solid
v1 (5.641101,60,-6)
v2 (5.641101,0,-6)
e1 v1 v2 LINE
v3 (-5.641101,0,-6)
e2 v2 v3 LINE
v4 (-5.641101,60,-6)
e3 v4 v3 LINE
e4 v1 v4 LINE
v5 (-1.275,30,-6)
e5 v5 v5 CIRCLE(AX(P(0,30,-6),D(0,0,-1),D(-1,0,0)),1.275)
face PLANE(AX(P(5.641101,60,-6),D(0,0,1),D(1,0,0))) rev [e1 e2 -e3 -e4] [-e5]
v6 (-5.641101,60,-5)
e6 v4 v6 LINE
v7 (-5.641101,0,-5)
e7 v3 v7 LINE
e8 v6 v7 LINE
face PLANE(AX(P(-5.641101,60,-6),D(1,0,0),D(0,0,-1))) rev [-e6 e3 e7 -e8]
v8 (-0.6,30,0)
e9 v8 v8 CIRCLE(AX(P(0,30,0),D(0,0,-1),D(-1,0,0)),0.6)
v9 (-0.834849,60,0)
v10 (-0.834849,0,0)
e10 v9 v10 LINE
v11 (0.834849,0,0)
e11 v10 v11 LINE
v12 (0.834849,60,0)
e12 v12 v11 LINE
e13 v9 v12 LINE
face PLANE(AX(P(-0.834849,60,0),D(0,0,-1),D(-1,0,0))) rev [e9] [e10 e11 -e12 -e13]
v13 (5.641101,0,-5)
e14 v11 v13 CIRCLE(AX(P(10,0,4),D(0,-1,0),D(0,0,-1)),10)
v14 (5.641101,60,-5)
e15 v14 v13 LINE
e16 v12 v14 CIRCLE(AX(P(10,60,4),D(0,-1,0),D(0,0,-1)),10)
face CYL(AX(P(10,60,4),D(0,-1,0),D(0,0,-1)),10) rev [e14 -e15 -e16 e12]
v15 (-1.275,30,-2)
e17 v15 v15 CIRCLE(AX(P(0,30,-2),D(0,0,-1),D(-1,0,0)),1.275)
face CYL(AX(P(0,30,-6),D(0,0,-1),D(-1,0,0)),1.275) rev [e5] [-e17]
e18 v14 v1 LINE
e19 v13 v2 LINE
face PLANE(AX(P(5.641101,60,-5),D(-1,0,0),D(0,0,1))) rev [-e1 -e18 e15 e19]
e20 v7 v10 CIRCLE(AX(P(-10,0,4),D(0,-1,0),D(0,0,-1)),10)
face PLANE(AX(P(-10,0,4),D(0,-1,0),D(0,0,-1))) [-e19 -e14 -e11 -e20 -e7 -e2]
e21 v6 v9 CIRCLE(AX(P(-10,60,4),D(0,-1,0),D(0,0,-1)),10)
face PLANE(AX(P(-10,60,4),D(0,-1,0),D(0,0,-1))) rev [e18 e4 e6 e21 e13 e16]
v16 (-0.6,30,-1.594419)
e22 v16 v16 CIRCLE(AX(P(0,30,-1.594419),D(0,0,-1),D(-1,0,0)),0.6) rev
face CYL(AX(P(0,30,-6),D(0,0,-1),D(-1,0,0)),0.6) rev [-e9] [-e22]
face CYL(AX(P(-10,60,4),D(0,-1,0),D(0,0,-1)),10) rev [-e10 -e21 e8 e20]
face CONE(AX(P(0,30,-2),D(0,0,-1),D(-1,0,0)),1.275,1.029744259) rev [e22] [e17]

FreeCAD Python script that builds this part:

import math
import FreeCAD as App
import Part
import Sketcher
Q = App.Units.Quantity

doc = App.newDocument("Part")
params = doc.addObject("Spreadsheet::Sheet", "Params")
for row, (alias, value) in enumerate([
    ("sketch1_radius", "10 mm"),
    ("sketch1_height", "1 mm"),
    ("pad1_length", "60 mm"),
    ("sketch2_diameter", "2.55 mm"),
    ("hole_diameter", "2.55 mm"),
    ("hole_depth", "4 mm"),
    ("sketch3_diameter", "1.2 mm"),
    ("hole2_diameter", "1.2 mm"),
    ("hole2_depth", "6.45 mm"),
], start=1):
    params.set(f"A{row}", alias)
    params.set(f"B{row}", "=" + value)
    params.setAlias(f"B{row}", alias)

body = doc.addObject("PartDesign::Body", "Body")

# Sketch on XZ plane
sketch1 = body.newObject("Sketcher::SketchObject", "Sketch")
sketch1.AttachmentSupport = (doc.getObject("XZ_Plane"), [""])
sketch1.MapMode = "FlatFace"
sketch1.addGeometry([
    Part.LineSegment(App.Vector(-0.8, 0, 0), App.Vector(0.8, 0, 0)),  # 0
    Part.ArcOfCircle(Part.Circle(App.Vector(10, 4, 0), App.Vector(0, 0, 1), 10), math.radians(-156), math.radians(-116)),  # 1
    Part.LineSegment(App.Vector(5.6, -5, 0), App.Vector(5.6, -6, 0)),  # 2
    Part.LineSegment(App.Vector(5.6, -6, 0), App.Vector(-5.6, -6, 0)),  # 3
    Part.LineSegment(App.Vector(-5.6, -6, 0), App.Vector(-5.6, -5, 0)),  # 4
    Part.ArcOfCircle(Part.Circle(App.Vector(-10, 4, 0), App.Vector(0, 0, 1), 10), math.radians(-64), math.radians(-24)),  # 5
], False)
sketch1.addConstraint([
    Sketcher.Constraint("Coincident", 0, 2, 1, 1),
    Sketcher.Constraint("Coincident", 1, 2, 2, 1),
    Sketcher.Constraint("Coincident", 2, 2, 3, 1),
    Sketcher.Constraint("Coincident", 3, 2, 4, 1),
    Sketcher.Constraint("Coincident", 4, 2, 5, 1),
    Sketcher.Constraint("Coincident", 5, 2, 0, 1),
    Sketcher.Constraint("Horizontal", 0),
    Sketcher.Constraint("Vertical", 2),
    Sketcher.Constraint("Horizontal", 3),
    Sketcher.Constraint("Vertical", 4),
    Sketcher.Constraint("Equal", 1, 5),
    Sketcher.Constraint("Symmetric", 0, 2, 5, 2, -1, 1),
    Sketcher.Constraint("Symmetric", 1, 2, 4, 2, -2),
    Sketcher.Constraint("Radius", 1, Q("10 mm")),
    Sketcher.Constraint("DistanceY", 2, 2, 2, 1, Q("1 mm")),
    Sketcher.Constraint("DistanceX", -1, 1, 1, 3, Q("10 mm")),
    Sketcher.Constraint("DistanceY", -1, 1, 1, 3, Q("4 mm")),
    Sketcher.Constraint("DistanceY", 1, 2, -1, 1, Q("5 mm")),
])
sketch1.setExpression("Constraints[13]", "Params.sketch1_radius")
sketch1.setExpression("Constraints[14]", "Params.sketch1_height")
pad1 = body.newObject("PartDesign::Pad", "Pad")
pad1.Profile = sketch1
pad1.setExpression("Length", "Params.pad1_length")
pad1.Reversed = True

# Sketch on XY plane
sketch2 = body.newObject("Sketcher::SketchObject", "Sketch001")
sketch2.AttachmentSupport = (doc.getObject("XY_Plane"), [""])
sketch2.MapMode = "FlatFace"
sketch2.AttachmentOffset = App.Placement(App.Vector(0, 0, -6), App.Rotation())
sketch2.addGeometry(Part.Circle(App.Vector(0, 30, 0), App.Vector(0, 0, 1), 1.3), False)
sketch2.addConstraint([
    Sketcher.Constraint("PointOnObject", 0, 3, -2),
    Sketcher.Constraint("Diameter", 0, Q("2.55 mm")),
    Sketcher.Constraint("DistanceY", -1, 1, 0, 3, Q("30 mm")),
])
sketch2.setExpression("Constraints[1]", "Params.sketch2_diameter")
doc.recompute()
hole = body.newObject("PartDesign::Hole", "Hole")
hole.Profile = sketch2
hole.ThreadType = "None"
hole.setExpression("Diameter", "Params.hole_diameter")
hole.DepthType = "Dimension"
hole.setExpression("Depth", "Params.hole_depth")
hole.DrillPoint = "Angled"
hole.DrillPointAngle = 118
hole.Reversed = True

# Sketch on XY plane
sketch3 = body.newObject("Sketcher::SketchObject", "Sketch002")
sketch3.AttachmentSupport = (doc.getObject("XY_Plane"), [""])
sketch3.MapMode = "FlatFace"
sketch3.AttachmentOffset = App.Placement(App.Vector(0, 0, -6), App.Rotation())
sketch3.addGeometry(Part.Circle(App.Vector(0, 30, 0), App.Vector(0, 0, 1), 0.6), False)
sketch3.addConstraint([
    Sketcher.Constraint("PointOnObject", 0, 3, -2),
    Sketcher.Constraint("Diameter", 0, Q("1.2 mm")),
    Sketcher.Constraint("DistanceY", -1, 1, 0, 3, Q("30 mm")),
])
sketch3.setExpression("Constraints[1]", "Params.sketch3_diameter")
doc.recompute()
hole2 = body.newObject("PartDesign::Hole", "Hole001")
hole2.Profile = sketch3
hole2.ThreadType = "None"
hole2.setExpression("Diameter", "Params.hole2_diameter")
hole2.DepthType = "Dimension"
hole2.setExpression("Depth", "Params.hole2_depth")
hole2.DrillPoint = "Angled"
hole2.DrillPointAngle = 118
hole2.Reversed = True

doc.recompute()
